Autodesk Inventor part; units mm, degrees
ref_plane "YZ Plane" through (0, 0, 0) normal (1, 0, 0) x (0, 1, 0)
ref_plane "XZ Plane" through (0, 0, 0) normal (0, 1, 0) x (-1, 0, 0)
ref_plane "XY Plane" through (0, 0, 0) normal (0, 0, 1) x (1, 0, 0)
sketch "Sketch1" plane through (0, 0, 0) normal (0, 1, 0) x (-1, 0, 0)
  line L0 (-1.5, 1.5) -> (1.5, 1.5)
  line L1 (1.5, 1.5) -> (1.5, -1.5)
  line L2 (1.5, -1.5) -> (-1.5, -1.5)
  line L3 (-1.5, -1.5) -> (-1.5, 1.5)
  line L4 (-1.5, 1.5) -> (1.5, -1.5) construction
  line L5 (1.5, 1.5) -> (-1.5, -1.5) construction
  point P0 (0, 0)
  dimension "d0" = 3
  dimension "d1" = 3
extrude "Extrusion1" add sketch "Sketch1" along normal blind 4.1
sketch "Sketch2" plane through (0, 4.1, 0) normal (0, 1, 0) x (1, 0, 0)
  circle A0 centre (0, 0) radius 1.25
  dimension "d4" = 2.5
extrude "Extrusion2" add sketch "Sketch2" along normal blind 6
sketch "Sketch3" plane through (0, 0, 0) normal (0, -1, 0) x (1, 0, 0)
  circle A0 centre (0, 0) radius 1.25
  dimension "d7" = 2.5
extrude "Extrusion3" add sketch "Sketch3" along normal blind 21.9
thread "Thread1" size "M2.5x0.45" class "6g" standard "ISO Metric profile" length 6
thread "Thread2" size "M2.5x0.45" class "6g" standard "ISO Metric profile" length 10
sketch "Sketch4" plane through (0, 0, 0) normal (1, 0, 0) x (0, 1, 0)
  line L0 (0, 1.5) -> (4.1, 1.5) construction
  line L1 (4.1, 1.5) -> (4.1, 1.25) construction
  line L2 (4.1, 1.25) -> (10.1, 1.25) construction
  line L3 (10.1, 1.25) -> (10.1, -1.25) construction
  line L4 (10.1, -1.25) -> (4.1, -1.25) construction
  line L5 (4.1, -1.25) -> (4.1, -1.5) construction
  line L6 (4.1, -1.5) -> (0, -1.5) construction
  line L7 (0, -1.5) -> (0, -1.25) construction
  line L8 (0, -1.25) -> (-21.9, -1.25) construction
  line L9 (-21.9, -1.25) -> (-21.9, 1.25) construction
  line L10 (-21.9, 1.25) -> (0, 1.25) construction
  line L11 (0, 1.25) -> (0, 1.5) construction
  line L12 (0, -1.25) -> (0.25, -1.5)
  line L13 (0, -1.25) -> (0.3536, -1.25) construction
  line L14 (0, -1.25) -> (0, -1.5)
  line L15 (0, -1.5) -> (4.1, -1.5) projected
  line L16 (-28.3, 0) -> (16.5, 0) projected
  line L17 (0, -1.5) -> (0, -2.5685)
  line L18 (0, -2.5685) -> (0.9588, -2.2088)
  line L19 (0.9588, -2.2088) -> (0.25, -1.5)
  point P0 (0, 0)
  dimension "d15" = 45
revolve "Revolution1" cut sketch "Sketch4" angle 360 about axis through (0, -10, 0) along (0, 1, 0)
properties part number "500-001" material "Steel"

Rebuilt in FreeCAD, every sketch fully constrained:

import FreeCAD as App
import Part
import Sketcher
Q = App.Units.Quantity

doc = App.newDocument("Part")
body = doc.addObject("PartDesign::Body", "Body")

sketch1 = body.newObject("Sketcher::SketchObject", "Sketch")
sketch1.AttachmentSupport = (doc.getObject("XZ_Plane"), [""])
sketch1.MapMode = "FlatFace"
sketch1.addGeometry(Part.LineSegment(App.Vector(-1.5, 1.5, 0), App.Vector(1.5, 1.5, 0)), False)
sketch1.addGeometry(Part.LineSegment(App.Vector(1.5, 1.5, 0), App.Vector(1.5, -1.5, 0)), False)
sketch1.addGeometry(Part.LineSegment(App.Vector(1.5, -1.5, 0), App.Vector(-1.5, -1.5, 0)), False)
sketch1.addGeometry(Part.LineSegment(App.Vector(-1.5, -1.5, 0), App.Vector(-1.5, 1.5, 0)), False)
sketch1.addConstraint(Sketcher.Constraint("Coincident", 0, 2, 1, 1))
sketch1.addConstraint(Sketcher.Constraint("Coincident", 1, 2, 2, 1))
sketch1.addConstraint(Sketcher.Constraint("Coincident", 2, 2, 3, 1))
sketch1.addConstraint(Sketcher.Constraint("Coincident", 3, 2, 0, 1))
sketch1.addConstraint(Sketcher.Constraint("Horizontal", 0))
sketch1.addConstraint(Sketcher.Constraint("Vertical", 1))
sketch1.addConstraint(Sketcher.Constraint("Horizontal", 2))
sketch1.addConstraint(Sketcher.Constraint("Vertical", 3))
sketch1.addConstraint(Sketcher.Constraint("Symmetric", 0, 2, 2, 2, -1, 1))
sketch1.addConstraint(Sketcher.Constraint("Equal", 2, 1))
sketch1.addConstraint(Sketcher.Constraint("DistanceX", 0, 1, 0, 2, Q("3 mm")))
pad1 = body.newObject("PartDesign::Pad", "Pad")
pad1.Profile = sketch1
pad1.Length = 4.1
pad1.Reversed = True

sketch2 = body.newObject("Sketcher::SketchObject", "Sketch001")
sketch2.AttachmentSupport = (doc.getObject("XZ_Plane"), [""])
sketch2.MapMode = "FlatFace"
sketch2.AttachmentOffset = App.Placement(App.Vector(0, 0, -4.1), App.Rotation())
sketch2.addGeometry(Part.Circle(App.Vector(0, 0, 0), App.Vector(0, 0, 1), 1.2), False)
sketch2.addConstraint(Sketcher.Constraint("Coincident", 0, 3, -1, 1))
sketch2.addConstraint(Sketcher.Constraint("Diameter", 0, Q("2.5 mm")))
pad2 = body.newObject("PartDesign::Pad", "Pad001")
pad2.Profile = sketch2
pad2.Length = 6
pad2.Reversed = True

sketch3 = body.newObject("Sketcher::SketchObject", "Sketch002")
sketch3.AttachmentSupport = (doc.getObject("XZ_Plane"), [""])
sketch3.MapMode = "FlatFace"
sketch3.addGeometry(Part.Circle(App.Vector(0, 0, 0), App.Vector(0, 0, 1), 1.2), False)
sketch3.addConstraint(Sketcher.Constraint("Coincident", 0, 3, -1, 1))
sketch3.addConstraint(Sketcher.Constraint("Diameter", 0, Q("2.5 mm")))
pad3 = body.newObject("PartDesign::Pad", "Pad002")
pad3.Profile = sketch3
pad3.Length = 21.9

sketch4 = body.newObject("Sketcher::SketchObject", "Sketch003")
sketch4.AttachmentSupport = (doc.getObject("YZ_Plane"), [""])
sketch4.MapMode = "FlatFace"
sketch4.addGeometry(Part.LineSegment(App.Vector(0, -1.2, 0), App.Vector(0, -2.6, 0)), False)
sketch4.addGeometry(Part.LineSegment(App.Vector(0, -2.6, 0), App.Vector(1, -2.2, 0)), False)
sketch4.addGeometry(Part.LineSegment(App.Vector(1, -2.2, 0), App.Vector(0, -1.2, 0)), False)
sketch4.addConstraint(Sketcher.Constraint("Coincident", 0, 2, 1, 1))
sketch4.addConstraint(Sketcher.Constraint("Coincident", 1, 2, 2, 1))
sketch4.addConstraint(Sketcher.Constraint("Coincident", 2, 2, 0, 1))
sketch4.addConstraint(Sketcher.Constraint("Vertical", 0))
sketch4.addConstraint(Sketcher.Constraint("PointOnObject", 0, 2, -2))
sketch4.addConstraint(Sketcher.Constraint("Angle", 2, Q("135 deg")))
sketch4.addConstraint(Sketcher.Constraint("DistanceY", 2, 2, -1, 1, Q("1.25 mm")))
sketch4.addConstraint(Sketcher.Constraint("Distance", 1, Q("1.024 mm")))
sketch4.addConstraint(Sketcher.Constraint("Distance", 2, Q("1.356 mm")))
groove = body.newObject("PartDesign::Groove", "Groove")
groove.Profile = sketch4
groove.ReferenceAxis = (sketch4, ["H_Axis"])
groove.Angle = 360

doc.recompute()
